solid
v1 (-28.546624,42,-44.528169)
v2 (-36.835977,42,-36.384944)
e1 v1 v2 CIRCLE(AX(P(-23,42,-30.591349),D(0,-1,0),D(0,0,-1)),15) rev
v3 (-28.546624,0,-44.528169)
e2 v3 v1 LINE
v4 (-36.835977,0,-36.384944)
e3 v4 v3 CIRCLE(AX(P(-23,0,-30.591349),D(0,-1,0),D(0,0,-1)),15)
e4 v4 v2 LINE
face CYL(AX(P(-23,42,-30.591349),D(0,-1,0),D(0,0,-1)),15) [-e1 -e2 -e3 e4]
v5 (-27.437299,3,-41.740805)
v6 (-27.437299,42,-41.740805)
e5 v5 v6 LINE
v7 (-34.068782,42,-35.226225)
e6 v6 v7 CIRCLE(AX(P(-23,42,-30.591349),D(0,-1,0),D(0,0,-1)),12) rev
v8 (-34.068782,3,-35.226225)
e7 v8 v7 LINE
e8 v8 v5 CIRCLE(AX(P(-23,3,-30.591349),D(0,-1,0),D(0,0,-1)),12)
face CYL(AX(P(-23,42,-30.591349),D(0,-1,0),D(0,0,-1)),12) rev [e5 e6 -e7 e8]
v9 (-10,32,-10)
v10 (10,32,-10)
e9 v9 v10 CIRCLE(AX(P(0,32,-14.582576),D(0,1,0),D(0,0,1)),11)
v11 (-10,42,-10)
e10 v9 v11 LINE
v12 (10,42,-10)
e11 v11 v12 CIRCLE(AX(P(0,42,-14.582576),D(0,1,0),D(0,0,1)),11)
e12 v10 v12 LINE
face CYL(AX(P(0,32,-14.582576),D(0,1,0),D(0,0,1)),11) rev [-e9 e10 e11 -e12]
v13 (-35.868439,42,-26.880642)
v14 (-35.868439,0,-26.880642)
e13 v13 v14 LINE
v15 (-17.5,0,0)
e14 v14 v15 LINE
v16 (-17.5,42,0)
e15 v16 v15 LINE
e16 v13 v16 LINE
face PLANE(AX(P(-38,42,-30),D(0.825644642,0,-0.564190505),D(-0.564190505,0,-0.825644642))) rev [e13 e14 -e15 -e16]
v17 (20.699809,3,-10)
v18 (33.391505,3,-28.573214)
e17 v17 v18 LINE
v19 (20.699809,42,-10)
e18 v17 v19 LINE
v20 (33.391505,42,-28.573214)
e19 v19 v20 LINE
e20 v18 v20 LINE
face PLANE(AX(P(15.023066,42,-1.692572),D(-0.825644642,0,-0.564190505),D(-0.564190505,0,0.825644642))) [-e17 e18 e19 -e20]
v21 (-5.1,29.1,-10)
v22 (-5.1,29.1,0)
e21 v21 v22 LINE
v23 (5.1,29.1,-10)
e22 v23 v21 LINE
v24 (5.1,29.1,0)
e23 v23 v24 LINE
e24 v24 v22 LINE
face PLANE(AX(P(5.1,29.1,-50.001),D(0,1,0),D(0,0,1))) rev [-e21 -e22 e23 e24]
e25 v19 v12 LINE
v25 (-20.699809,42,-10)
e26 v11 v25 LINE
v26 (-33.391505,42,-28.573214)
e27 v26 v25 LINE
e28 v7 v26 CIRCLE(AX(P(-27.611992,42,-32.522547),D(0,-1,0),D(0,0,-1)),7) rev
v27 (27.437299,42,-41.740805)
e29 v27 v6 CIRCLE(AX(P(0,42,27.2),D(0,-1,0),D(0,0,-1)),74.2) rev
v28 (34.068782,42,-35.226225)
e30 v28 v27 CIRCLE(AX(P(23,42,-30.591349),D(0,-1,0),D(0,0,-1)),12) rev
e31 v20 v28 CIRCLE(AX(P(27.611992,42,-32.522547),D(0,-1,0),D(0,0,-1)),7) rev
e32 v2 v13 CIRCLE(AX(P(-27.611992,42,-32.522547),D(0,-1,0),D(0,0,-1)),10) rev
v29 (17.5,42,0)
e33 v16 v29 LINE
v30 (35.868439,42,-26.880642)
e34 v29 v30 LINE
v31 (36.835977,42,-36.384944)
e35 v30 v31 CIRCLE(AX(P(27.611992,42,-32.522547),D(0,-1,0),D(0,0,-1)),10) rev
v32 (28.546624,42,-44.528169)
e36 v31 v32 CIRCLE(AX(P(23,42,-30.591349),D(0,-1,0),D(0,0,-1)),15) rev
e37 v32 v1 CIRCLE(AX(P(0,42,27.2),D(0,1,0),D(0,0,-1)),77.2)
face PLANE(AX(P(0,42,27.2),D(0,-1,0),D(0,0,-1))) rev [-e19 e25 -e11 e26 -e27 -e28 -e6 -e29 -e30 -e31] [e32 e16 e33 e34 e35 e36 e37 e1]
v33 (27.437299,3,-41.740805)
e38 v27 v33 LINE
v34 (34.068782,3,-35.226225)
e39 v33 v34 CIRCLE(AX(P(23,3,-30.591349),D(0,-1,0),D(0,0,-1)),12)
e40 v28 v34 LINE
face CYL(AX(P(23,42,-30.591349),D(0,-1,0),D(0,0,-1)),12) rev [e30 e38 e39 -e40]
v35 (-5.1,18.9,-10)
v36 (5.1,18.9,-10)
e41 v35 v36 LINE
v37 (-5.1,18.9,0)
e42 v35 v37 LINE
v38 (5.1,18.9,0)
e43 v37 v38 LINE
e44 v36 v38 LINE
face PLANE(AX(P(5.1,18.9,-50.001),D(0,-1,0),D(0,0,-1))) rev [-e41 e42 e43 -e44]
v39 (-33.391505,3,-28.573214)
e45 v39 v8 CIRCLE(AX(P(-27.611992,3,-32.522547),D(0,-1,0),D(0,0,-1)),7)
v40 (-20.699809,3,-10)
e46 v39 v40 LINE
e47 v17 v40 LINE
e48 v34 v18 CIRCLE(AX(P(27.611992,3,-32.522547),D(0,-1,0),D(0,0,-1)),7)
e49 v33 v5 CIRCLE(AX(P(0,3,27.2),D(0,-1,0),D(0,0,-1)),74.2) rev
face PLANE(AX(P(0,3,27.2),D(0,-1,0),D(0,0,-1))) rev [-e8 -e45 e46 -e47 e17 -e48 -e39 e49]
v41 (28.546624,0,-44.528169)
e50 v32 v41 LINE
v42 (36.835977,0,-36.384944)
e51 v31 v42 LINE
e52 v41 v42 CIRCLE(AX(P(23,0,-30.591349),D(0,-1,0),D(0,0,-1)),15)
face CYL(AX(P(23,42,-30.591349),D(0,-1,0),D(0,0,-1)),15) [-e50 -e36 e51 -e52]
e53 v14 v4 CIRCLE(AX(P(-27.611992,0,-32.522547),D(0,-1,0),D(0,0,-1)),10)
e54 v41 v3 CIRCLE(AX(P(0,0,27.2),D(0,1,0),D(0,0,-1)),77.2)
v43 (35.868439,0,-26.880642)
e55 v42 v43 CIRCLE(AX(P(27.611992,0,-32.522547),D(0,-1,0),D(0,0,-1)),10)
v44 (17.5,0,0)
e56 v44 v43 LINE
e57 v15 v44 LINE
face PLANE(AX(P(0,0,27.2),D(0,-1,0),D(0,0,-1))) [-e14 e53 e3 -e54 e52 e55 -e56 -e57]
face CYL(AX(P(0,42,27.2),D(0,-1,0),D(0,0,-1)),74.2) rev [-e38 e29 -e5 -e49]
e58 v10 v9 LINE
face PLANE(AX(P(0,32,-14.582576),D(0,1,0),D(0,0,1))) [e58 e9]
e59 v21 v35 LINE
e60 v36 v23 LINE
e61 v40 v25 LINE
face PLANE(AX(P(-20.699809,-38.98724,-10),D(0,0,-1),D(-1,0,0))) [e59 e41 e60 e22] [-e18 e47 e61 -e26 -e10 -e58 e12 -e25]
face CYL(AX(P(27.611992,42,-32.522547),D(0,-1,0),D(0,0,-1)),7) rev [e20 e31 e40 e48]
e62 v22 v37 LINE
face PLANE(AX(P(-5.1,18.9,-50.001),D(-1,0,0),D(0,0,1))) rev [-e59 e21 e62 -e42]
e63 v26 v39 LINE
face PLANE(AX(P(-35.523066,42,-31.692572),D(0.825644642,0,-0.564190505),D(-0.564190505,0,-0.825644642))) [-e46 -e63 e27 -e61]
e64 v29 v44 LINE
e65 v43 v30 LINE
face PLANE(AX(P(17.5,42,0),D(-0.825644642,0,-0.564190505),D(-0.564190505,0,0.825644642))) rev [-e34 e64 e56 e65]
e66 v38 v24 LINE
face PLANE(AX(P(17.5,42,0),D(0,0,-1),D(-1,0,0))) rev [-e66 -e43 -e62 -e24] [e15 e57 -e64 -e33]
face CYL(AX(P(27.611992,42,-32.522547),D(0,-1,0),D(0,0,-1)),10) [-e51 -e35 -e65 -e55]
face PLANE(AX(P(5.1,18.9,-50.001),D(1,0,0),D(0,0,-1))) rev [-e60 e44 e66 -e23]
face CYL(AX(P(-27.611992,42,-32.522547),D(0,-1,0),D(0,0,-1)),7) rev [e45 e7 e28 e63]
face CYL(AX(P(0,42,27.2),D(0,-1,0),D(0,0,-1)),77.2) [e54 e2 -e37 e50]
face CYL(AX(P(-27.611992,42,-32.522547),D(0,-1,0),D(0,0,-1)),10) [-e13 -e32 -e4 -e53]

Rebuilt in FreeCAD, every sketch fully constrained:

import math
import FreeCAD as App
import Part
import Sketcher
from FreeCAD import Vector
Q = App.Units.Quantity


def edges_at(feature, points):
    """Names of the edges that pass closest to the given points."""
    edges = feature.Shape.Edges
    near = lambda p: min(range(len(edges)), key=lambda i: edges[i].distToShape(Part.Vertex(*p))[0])
    return sorted({f"Edge{near(p) + 1}" for p in points})


def faces_at(feature, points):
    """Names of the faces that lie closest to the given points."""
    faces = feature.Shape.Faces
    near = lambda p: min(range(len(faces)), key=lambda i: faces[i].distToShape(Part.Vertex(*p))[0])
    return sorted({f"Face{near(p) + 1}" for p in points})

doc = App.newDocument("Part")
params = doc.addObject("Spreadsheet::Sheet", "Params")
for row, (alias, value) in enumerate([
    ("sketch1_radius", "77.2 mm"),
    ("sketch1_width", "35 mm"),
    ("sketch1_height", "10 mm"),
    ("pad1_length", "42 mm"),
    ("fillet_radius", "15 mm"),
    ("fillet2_radius", "10 mm"),
    ("thickness_wall", "3 mm"),
    ("pad2_length", "39 mm"),
    ("sketch3_width", "10.2 mm"),
    ("sketch4_radius", "11 mm"),
    ("sketch4_width", "20 mm"),
    ("pocket2_length", "10 mm"),
], start=1):
    params.set(f"A{row}", alias)
    params.set(f"B{row}", "=" + value)
    params.setAlias(f"B{row}", alias)

body = doc.addObject("PartDesign::Body", "Body")

sketch1 = body.newObject("Sketcher::SketchObject", "Sketch")
sketch1.AttachmentSupport = (doc.getObject("XZ_Plane"), [""])
sketch1.MapMode = "FlatFace"
sketch1.addGeometry([
    Part.LineSegment(Vector(-17.5, 0, 0), Vector(17.5, 0, 0)),
    Part.LineSegment(Vector(17.5, 0, 0), Vector(38, -30, 0)),
    Part.LineSegment(Vector(38, -30, 0), Vector(38, -40, 0)),
    Part.ArcOfCircle(Part.Circle(Vector(0, 27.2, 0), Vector(0, 0, 1), 77.2), math.radians(-119.487126), math.radians(-60.512874)),
    Part.LineSegment(Vector(-38, -40, 0), Vector(-38, -30, 0)),
    Part.LineSegment(Vector(-38, -30, 0), Vector(-17.5, 0, 0)),
], False)
sketch1.addConstraint([
    Sketcher.Constraint("Coincident", 0, 2, 1, 1),
    Sketcher.Constraint("Coincident", 1, 2, 2, 1),
    Sketcher.Constraint("Coincident", 2, 2, 3, 2),
    Sketcher.Constraint("Coincident", 3, 1, 4, 1),
    Sketcher.Constraint("Coincident", 4, 2, 5, 1),
    Sketcher.Constraint("Coincident", 5, 2, 0, 1),
    Sketcher.Constraint("Horizontal", 0),
    Sketcher.Constraint("Vertical", 2),
    Sketcher.Constraint("Vertical", 4),
    Sketcher.Constraint("Symmetric", 0, 2, 5, 2, -1, 1),
    Sketcher.Constraint("Symmetric", 2, 2, 3, 1, -2),
    Sketcher.Constraint("Horizontal", 1, 2, 4, 2),
    Sketcher.Constraint("Radius", 3, Q("77.2 mm")),
    Sketcher.Constraint("DistanceX", 0, 1, 0, 2, Q("35 mm")),
    Sketcher.Constraint("DistanceY", 2, 2, 2, 1, Q("10 mm")),
    Sketcher.Constraint("DistanceX", -1, 1, 1, 2, Q("38 mm")),
    Sketcher.Constraint("DistanceY", 1, 2, -1, 1, Q("30 mm")),
])
sketch1.setExpression("Constraints[12]", "Params.sketch1_radius")
sketch1.setExpression("Constraints[13]", "Params.sketch1_width")
sketch1.setExpression("Constraints[14]", "Params.sketch1_height")
pad1 = body.newObject("PartDesign::Pad", "Pad")
pad1.Profile = sketch1
pad1.setExpression("Length", "Params.pad1_length")
pad1.Reversed = True
doc.recompute()

fillet = body.newObject("PartDesign::Fillet", "Fillet")
fillet.Base = (pad1, edges_at(pad1, [(-38, 21, -40), (38, 21, -40)]))
fillet.setExpression("Radius", "Params.fillet_radius")
doc.recompute()

fillet2 = body.newObject("PartDesign::Fillet", "Fillet001")
fillet2.Base = (fillet, edges_at(fillet, [(38, 21, -30), (-38, 21, -30)]))
fillet2.setExpression("Radius", "Params.fillet2_radius")
doc.recompute()

thickness = body.newObject("PartDesign::Thickness", "Thickness")
thickness.Base = (fillet2, faces_at(fillet2, [(0, 42, -25)]))
thickness.setExpression("Value", "Params.thickness_wall")
thickness.Reversed = True
thickness.Join = "Arc"

sketch2 = body.newObject("Sketcher::SketchObject", "Sketch001")
sketch2.AttachmentSupport = (doc.getObject("XZ_Plane"), [""])
sketch2.MapMode = "FlatFace"
sketch2.AttachmentOffset = App.Placement(Vector(0, 0, -42), App.Rotation())
sketch2.addGeometry([
    Part.LineSegment(Vector(20.699809, -10, 0), Vector(-20.699809, -10, 0)),
    Part.LineSegment(Vector(-20.699809, -10, 0), Vector(-15.916476, -3, 0)),
    Part.LineSegment(Vector(-15.916476, -3, 0), Vector(15.916476, -3, 0)),
    Part.LineSegment(Vector(15.916476, -3, 0), Vector(20.699809, -10, 0)),
], False)
sketch2.addConstraint([
    Sketcher.Constraint("Coincident", 0, 2, 1, 1),
    Sketcher.Constraint("Coincident", 1, 2, 2, 1),
    Sketcher.Constraint("Coincident", 2, 2, 3, 1),
    Sketcher.Constraint("Coincident", 3, 2, 0, 1),
    Sketcher.Constraint("Horizontal", 0),
    Sketcher.Constraint("Horizontal", 2),
    Sketcher.Constraint("Equal", 1, 3),
    Sketcher.Constraint("DistanceY", 0, 2, -1, 1, Q("10 mm")),
    Sketcher.Constraint("DistanceY", 1, 2, -1, 1, Q("3 mm")),
    Sketcher.Constraint("DistanceX", 2, 1, 2, 2, Q("31.832951 mm")),
    Sketcher.Constraint("DistanceX", 0, 2, 0, 1, Q("41.399618 mm")),
    Sketcher.Constraint("DistanceX", 0, 2, -1, 1, Q("20.699809 mm")),
])
pad2 = body.newObject("PartDesign::Pad", "Pad001")
pad2.Profile = sketch2
pad2.setExpression("Length", "Params.pad2_length")

sketch3 = body.newObject("Sketcher::SketchObject", "Sketch002")
sketch3.AttachmentSupport = (doc.getObject("XY_Plane"), [""])
sketch3.MapMode = "FlatFace"
sketch3.addGeometry([
    Part.LineSegment(Vector(-5.1, 29.1, 0), Vector(-5.1, 18.9, 0)),
    Part.LineSegment(Vector(-5.1, 18.9, 0), Vector(5.1, 18.9, 0)),
    Part.LineSegment(Vector(5.1, 18.9, 0), Vector(5.1, 29.1, 0)),
    Part.LineSegment(Vector(5.1, 29.1, 0), Vector(-5.1, 29.1, 0)),
], False)
sketch3.addConstraint([
    Sketcher.Constraint("Coincident", 0, 2, 1, 1),
    Sketcher.Constraint("Coincident", 1, 2, 2, 1),
    Sketcher.Constraint("Coincident", 2, 2, 3, 1),
    Sketcher.Constraint("Coincident", 3, 2, 0, 1),
    Sketcher.Constraint("Vertical", 0),
    Sketcher.Constraint("Horizontal", 1),
    Sketcher.Constraint("Vertical", 2),
    Sketcher.Constraint("Horizontal", 3),
    Sketcher.Constraint("Equal", 3, 0),
    Sketcher.Constraint("DistanceX", 1, 1, 1, 2, Q("10.2 mm")),
    Sketcher.Constraint("DistanceX", 0, 2, -1, 1, Q("5.1 mm")),
    Sketcher.Constraint("DistanceY", -1, 1, 0, 2, Q("18.9 mm")),
])
sketch3.setExpression("Constraints[9]", "Params.sketch3_width")
pocket1 = body.newObject("PartDesign::Pocket", "Pocket")
pocket1.Profile = sketch3
pocket1.Type = "UpToFirst"

sketch4 = body.newObject("Sketcher::SketchObject", "Sketch003")
sketch4.AttachmentSupport = (doc.getObject("XZ_Plane"), [""])
sketch4.MapMode = "FlatFace"
sketch4.AttachmentOffset = App.Placement(Vector(0, 0, -42), App.Rotation())
sketch4.addGeometry([
    Part.LineSegment(Vector(10, -10, 0), Vector(-10, -10, 0)),
    Part.ArcOfCircle(Part.Circle(Vector(0, -14.582576, 0), Vector(0, 0, 1), 11), math.radians(24.619977), math.radians(155.380023)),
], False)
sketch4.addConstraint([
    Sketcher.Constraint("Coincident", 0, 1, 1, 1),
    Sketcher.Constraint("Coincident", 1, 2, 0, 2),
    Sketcher.Constraint("Horizontal", 0),
    Sketcher.Constraint("PointOnObject", 1, 3, -2),
    Sketcher.Constraint("Radius", 1, Q("11 mm")),
    Sketcher.Constraint("DistanceX", 0, 2, 0, 1, Q("20 mm")),
    Sketcher.Constraint("DistanceY", 0, 1, -1, 1, Q("10 mm")),
])
sketch4.setExpression("Constraints[4]", "Params.sketch4_radius")
sketch4.setExpression("Constraints[5]", "Params.sketch4_width")
pocket2 = body.newObject("PartDesign::Pocket", "Pocket001")
pocket2.Profile = sketch4
pocket2.setExpression("Length", "Params.pocket2_length")
pocket2.Reversed = True

doc.recompute()
